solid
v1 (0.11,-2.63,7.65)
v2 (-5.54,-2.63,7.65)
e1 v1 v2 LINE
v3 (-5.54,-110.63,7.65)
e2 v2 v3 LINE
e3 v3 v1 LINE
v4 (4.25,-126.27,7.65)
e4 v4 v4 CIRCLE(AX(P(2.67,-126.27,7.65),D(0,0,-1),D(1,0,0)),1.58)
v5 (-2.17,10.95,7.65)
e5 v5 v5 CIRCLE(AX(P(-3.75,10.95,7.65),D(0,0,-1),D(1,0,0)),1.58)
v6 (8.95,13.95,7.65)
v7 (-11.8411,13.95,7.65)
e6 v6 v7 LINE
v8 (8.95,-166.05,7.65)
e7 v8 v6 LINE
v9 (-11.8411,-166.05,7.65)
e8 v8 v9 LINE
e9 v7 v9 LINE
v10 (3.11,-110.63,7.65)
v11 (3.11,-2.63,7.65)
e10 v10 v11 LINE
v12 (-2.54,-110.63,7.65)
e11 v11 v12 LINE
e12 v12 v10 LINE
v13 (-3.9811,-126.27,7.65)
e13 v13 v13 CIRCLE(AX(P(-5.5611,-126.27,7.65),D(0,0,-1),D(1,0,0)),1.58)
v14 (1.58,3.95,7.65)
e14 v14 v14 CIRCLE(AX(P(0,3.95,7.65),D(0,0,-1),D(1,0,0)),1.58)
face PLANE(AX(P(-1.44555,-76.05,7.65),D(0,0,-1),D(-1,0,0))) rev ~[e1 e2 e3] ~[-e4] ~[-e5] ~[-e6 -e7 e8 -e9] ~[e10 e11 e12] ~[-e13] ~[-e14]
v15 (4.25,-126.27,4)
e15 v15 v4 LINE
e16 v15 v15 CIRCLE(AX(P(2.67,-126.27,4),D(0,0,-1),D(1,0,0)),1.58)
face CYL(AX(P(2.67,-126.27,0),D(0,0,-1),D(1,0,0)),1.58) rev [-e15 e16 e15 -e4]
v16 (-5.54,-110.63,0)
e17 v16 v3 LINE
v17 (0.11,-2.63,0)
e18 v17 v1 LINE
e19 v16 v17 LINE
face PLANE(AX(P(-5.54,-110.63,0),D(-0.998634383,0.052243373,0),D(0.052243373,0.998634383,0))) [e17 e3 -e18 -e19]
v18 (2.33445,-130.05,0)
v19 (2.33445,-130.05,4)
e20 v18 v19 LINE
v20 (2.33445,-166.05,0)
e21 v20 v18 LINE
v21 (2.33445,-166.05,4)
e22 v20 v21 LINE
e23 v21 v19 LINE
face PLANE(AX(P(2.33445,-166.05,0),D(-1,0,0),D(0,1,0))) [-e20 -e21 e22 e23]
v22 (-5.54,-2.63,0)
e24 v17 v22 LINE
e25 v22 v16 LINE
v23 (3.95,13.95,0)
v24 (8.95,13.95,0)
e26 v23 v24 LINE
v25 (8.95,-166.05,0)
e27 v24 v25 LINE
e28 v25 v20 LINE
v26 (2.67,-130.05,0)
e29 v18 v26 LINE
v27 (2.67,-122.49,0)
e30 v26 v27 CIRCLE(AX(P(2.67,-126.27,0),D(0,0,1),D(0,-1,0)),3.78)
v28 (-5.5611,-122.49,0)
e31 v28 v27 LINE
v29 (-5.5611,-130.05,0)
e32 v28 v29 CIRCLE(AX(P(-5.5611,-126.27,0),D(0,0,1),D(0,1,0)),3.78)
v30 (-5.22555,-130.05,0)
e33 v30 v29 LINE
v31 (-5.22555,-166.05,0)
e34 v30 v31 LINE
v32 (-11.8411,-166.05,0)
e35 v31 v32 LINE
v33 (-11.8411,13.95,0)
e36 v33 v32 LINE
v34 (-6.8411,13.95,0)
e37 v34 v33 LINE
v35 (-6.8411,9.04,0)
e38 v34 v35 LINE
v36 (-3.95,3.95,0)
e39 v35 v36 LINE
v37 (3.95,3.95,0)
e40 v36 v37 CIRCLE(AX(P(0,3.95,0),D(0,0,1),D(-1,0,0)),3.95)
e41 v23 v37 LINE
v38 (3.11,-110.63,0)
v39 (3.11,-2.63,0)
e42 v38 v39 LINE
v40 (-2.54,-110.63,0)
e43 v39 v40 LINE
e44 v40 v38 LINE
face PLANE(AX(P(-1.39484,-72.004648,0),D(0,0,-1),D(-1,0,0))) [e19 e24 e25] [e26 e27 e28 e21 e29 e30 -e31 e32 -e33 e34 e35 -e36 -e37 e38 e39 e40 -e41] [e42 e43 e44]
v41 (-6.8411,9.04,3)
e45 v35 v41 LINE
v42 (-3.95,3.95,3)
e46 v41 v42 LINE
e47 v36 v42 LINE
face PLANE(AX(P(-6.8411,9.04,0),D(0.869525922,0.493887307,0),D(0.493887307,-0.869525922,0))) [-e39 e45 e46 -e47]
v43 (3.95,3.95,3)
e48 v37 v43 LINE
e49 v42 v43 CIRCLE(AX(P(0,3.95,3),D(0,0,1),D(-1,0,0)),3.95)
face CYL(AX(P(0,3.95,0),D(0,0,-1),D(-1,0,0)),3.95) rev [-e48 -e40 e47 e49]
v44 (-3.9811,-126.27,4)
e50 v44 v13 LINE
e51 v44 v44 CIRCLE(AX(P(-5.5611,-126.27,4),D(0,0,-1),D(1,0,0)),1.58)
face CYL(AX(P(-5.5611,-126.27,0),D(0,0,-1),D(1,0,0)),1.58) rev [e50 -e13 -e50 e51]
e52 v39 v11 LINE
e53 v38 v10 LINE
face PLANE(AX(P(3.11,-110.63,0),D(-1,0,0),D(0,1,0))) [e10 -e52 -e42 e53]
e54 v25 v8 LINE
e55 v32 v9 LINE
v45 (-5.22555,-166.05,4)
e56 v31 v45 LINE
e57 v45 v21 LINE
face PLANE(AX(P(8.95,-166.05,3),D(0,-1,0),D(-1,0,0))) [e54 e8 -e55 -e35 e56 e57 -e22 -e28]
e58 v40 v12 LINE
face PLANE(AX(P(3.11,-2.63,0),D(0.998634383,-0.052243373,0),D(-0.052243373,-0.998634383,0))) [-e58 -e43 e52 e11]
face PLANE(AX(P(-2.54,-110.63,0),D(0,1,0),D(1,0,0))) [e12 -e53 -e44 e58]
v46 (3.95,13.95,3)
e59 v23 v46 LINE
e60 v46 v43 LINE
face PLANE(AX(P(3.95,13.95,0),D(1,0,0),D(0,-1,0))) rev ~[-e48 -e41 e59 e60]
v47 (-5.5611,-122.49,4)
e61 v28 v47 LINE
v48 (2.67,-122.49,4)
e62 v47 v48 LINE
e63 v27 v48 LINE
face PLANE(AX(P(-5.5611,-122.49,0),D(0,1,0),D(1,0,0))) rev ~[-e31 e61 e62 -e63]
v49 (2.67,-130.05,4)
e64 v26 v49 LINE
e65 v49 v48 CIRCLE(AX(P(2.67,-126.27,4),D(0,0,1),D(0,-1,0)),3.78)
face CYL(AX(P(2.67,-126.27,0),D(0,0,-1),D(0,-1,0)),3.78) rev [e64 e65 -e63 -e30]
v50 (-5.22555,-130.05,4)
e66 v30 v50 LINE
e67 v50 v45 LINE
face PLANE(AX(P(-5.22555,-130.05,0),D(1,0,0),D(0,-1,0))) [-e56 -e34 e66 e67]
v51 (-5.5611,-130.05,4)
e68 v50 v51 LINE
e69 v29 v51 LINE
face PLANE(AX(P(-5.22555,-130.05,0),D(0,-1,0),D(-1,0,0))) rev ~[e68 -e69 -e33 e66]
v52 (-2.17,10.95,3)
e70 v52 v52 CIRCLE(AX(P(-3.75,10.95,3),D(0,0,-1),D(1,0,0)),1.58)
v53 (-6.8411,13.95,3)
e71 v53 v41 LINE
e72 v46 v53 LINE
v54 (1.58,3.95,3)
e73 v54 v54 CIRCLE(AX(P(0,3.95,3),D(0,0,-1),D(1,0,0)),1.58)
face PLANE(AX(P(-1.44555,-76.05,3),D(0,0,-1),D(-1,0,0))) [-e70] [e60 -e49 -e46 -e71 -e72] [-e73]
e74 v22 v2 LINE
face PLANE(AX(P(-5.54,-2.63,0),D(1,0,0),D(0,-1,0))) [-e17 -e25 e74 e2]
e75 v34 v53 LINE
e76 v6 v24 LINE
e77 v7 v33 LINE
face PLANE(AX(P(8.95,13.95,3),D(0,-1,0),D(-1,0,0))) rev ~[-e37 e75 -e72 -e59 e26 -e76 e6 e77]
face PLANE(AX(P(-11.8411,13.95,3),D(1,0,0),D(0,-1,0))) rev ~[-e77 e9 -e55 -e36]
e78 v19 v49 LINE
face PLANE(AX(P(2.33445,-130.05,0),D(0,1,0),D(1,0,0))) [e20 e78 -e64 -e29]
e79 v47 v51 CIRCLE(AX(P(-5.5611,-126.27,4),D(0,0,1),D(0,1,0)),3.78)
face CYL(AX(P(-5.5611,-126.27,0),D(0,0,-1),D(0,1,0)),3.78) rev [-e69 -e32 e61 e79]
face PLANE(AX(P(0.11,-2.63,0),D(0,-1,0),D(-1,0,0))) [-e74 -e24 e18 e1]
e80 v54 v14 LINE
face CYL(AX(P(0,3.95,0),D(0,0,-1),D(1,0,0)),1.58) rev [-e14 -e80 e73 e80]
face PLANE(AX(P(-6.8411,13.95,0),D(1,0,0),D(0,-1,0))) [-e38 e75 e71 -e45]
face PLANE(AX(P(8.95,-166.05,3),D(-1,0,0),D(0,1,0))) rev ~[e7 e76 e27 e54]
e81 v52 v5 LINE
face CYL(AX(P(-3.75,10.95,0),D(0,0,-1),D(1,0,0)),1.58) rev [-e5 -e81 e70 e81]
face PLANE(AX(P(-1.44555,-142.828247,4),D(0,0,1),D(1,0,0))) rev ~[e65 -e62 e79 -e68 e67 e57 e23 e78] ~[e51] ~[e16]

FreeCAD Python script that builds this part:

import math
import FreeCAD as App
import Part
import Sketcher

V = App.Vector
Q = App.Units.Quantity


def add_polygon(sketch, points):
    """Adds a closed chain of lines whose ends are joined by coincident constraints."""
    first, n = sketch.GeometryCount, len(points)
    for a, b in zip(points, points[1:] + points[:1]):
        sketch.addGeometry(Part.LineSegment(App.Vector(*a, 0), App.Vector(*b, 0)), False)
    for i in range(n):
        sketch.addConstraint(Sketcher.Constraint("Coincident", first + i, 2, first + (i + 1) % n, 1))

doc = App.newDocument("Part")
body = doc.addObject("PartDesign::Body", "Body")

# Sketch on XY plane
sketch1 = body.newObject("Sketcher::SketchObject", "Sketch")
sketch1.AttachmentSupport = (doc.getObject("XY_Plane"), [""])
sketch1.MapMode = "FlatFace"
sketch1.addGeometry(Part.ArcOfCircle(Part.Circle(V(0, 3.95, 0), V(0, 0, 1), 3.95), math.radians(180), math.radians(360)), False)
sketch1.addGeometry(Part.LineSegment(V(-3.95, 3.95, 0), V(-6.8411, 9.04, 0)), False)
sketch1.addGeometry(Part.LineSegment(V(-6.8411, 9.04, 0), V(-6.8411, 13.95, 0)), False)
sketch1.addGeometry(Part.LineSegment(V(-6.8411, 13.95, 0), V(-11.8411, 13.95, 0)), False)
sketch1.addGeometry(Part.LineSegment(V(-11.8411, 13.95, 0), V(-11.8411, -166.05, 0)), False)
sketch1.addGeometry(Part.LineSegment(V(-11.8411, -166.05, 0), V(8.95, -166.05, 0)), False)
sketch1.addGeometry(Part.LineSegment(V(8.95, -166.05, 0), V(8.95, 13.95, 0)), False)
sketch1.addGeometry(Part.LineSegment(V(8.95, 13.95, 0), V(3.95, 13.95, 0)), False)
sketch1.addGeometry(Part.LineSegment(V(3.95, 13.95, 0), V(3.95, 3.95, 0)), False)
sketch1.addConstraint(Sketcher.Constraint("Coincident", 0, 1, 1, 1))
sketch1.addConstraint(Sketcher.Constraint("Coincident", 1, 2, 2, 1))
sketch1.addConstraint(Sketcher.Constraint("Coincident", 2, 2, 3, 1))
sketch1.addConstraint(Sketcher.Constraint("Coincident", 3, 2, 4, 1))
sketch1.addConstraint(Sketcher.Constraint("Coincident", 4, 2, 5, 1))
sketch1.addConstraint(Sketcher.Constraint("Coincident", 5, 2, 6, 1))
sketch1.addConstraint(Sketcher.Constraint("Coincident", 6, 2, 7, 1))
sketch1.addConstraint(Sketcher.Constraint("Coincident", 7, 2, 8, 1))
sketch1.addConstraint(Sketcher.Constraint("Tangent", 8, 2, 0, 2))
sketch1.addConstraint(Sketcher.Constraint("Vertical", 2))
sketch1.addConstraint(Sketcher.Constraint("Horizontal", 3))
sketch1.addConstraint(Sketcher.Constraint("Vertical", 4))
sketch1.addConstraint(Sketcher.Constraint("Horizontal", 5))
sketch1.addConstraint(Sketcher.Constraint("Vertical", 6))
sketch1.addConstraint(Sketcher.Constraint("Horizontal", 7))
sketch1.addConstraint(Sketcher.Constraint("Vertical", 8))
sketch1.addConstraint(Sketcher.Constraint("Symmetric", 0, 1, 8, 2, -2))
sketch1.addConstraint(Sketcher.Constraint("Horizontal", 3, 2, 6, 2))
sketch1.addConstraint(Sketcher.Constraint("Equal", 3, 7))
sketch1.addConstraint(Sketcher.Constraint("DistanceX", 3, 2, 3, 1, Q("5 mm")))
sketch1.addConstraint(Sketcher.Constraint("DistanceY", 4, 2, 4, 1, Q("180 mm")))
sketch1.addConstraint(Sketcher.Constraint("DistanceY", 8, 2, 8, 1, Q("10 mm")))
sketch1.addConstraint(Sketcher.Constraint("Radius", 0, Q("3.95 mm")))
sketch1.addConstraint(Sketcher.Constraint("DistanceY", 2, 1, 2, 2, Q("4.91 mm")))
sketch1.addConstraint(Sketcher.Constraint("DistanceY", -1, 1, 0, 3, Q("3.95 mm")))
sketch1.addConstraint(Sketcher.Constraint("DistanceX", 5, 1, 5, 2, Q("20.7911 mm")))
pad1 = body.newObject("PartDesign::Pad", "Pad")
pad1.Profile = sketch1
pad1.Length = 3

# Sketch on XY plane
sketch2 = body.newObject("Sketcher::SketchObject", "Sketch001")
sketch2.AttachmentSupport = (doc.getObject("XY_Plane"), [""])
sketch2.MapMode = "FlatFace"
sketch2.AttachmentOffset = App.Placement(V(0, 0, 3), App.Rotation())
add_polygon(sketch2, [(-11.8411, 13.95), (-11.8411, -166.05), (8.95, -166.05), (8.95, 13.95)])  # lines 0-3
sketch2.addConstraint(Sketcher.Constraint("Vertical", 0))
sketch2.addConstraint(Sketcher.Constraint("Horizontal", 1))
sketch2.addConstraint(Sketcher.Constraint("Vertical", 2))
sketch2.addConstraint(Sketcher.Constraint("Horizontal", 3))
sketch2.addConstraint(Sketcher.Constraint("DistanceY", 0, 2, 0, 1, Q("180 mm")))
sketch2.addConstraint(Sketcher.Constraint("DistanceY", 0, 2, -1, 1, Q("166.05 mm")))
sketch2.addConstraint(Sketcher.Constraint("DistanceX", -1, 1, 1, 2, Q("8.95 mm")))
sketch2.addConstraint(Sketcher.Constraint("DistanceX", 1, 1, 1, 2, Q("20.7911 mm")))
pad2 = body.newObject("PartDesign::Pad", "Pad001")
pad2.Profile = sketch2
pad2.Length = 4.65

# Sketch on XY plane
sketch3 = body.newObject("Sketcher::SketchObject", "Sketch002")
sketch3.AttachmentSupport = (doc.getObject("XY_Plane"), [""])
sketch3.MapMode = "FlatFace"
sketch3.addGeometry(Part.Circle(V(0, 3.95, 0), V(0, 0, 1), 1.58), False)
sketch3.addGeometry(Part.Circle(V(-3.75, 10.95, 0), V(0, 0, 1), 1.58), False)
sketch3.addConstraint(Sketcher.Constraint("Equal", 0, 1))
sketch3.addConstraint(Sketcher.Constraint("PointOnObject", 0, 3, -2))
sketch3.addConstraint(Sketcher.Constraint("Diameter", 0, Q("3.16 mm")))
sketch3.addConstraint(Sketcher.Constraint("DistanceY", 0, 3, 1, 3, Q("7 mm")))
sketch3.addConstraint(Sketcher.Constraint("DistanceY", -1, 1, 0, 3, Q("3.95 mm")))
sketch3.addConstraint(Sketcher.Constraint("DistanceX", 1, 3, -1, 1, Q("3.75 mm")))
pocket1 = body.newObject("PartDesign::Pocket", "Pocket")
pocket1.Profile = sketch3
pocket1.Type = "ThroughAll"
pocket1.Midplane = True

# Sketch on XY plane
sketch4 = body.newObject("Sketcher::SketchObject", "Sketch003")
sketch4.AttachmentSupport = (doc.getObject("XY_Plane"), [""])
sketch4.MapMode = "FlatFace"
add_polygon(sketch4, [(0.11, -2.63), (-5.54, -2.63), (-5.54, -110.63)])  # lines 0-2
add_polygon(sketch4, [(-2.54, -110.63), (3.11, -110.63), (3.11, -2.63)])  # lines 3-5
sketch4.addConstraint(Sketcher.Constraint("Horizontal", 0))
sketch4.addConstraint(Sketcher.Constraint("Vertical", 1))
sketch4.addConstraint(Sketcher.Constraint("Horizontal", 3))
sketch4.addConstraint(Sketcher.Constraint("Vertical", 4))
sketch4.addConstraint(Sketcher.Constraint("Parallel", 2, 5))
sketch4.addConstraint(Sketcher.Constraint("Horizontal", 1, 2, 3, 2))
sketch4.addConstraint(Sketcher.Constraint("Horizontal", 2, 2, 4, 2))
sketch4.addConstraint(Sketcher.Constraint("DistanceY", 1, 2, 1, 1, Q("108 mm")))
sketch4.addConstraint(Sketcher.Constraint("DistanceX", 2, 2, 3, 2, Q("3 mm")))
sketch4.addConstraint(Sketcher.Constraint("DistanceX", 0, 2, 0, 1, Q("5.65 mm")))
sketch4.addConstraint(Sketcher.Constraint("DistanceX", 0, 2, -1, 1, Q("5.54 mm")))
sketch4.addConstraint(Sketcher.Constraint("DistanceY", 0, 2, -1, 1, Q("2.63 mm")))
pocket2 = body.newObject("PartDesign::Pocket", "Pocket001")
pocket2.Profile = sketch4
pocket2.Type = "ThroughAll"
pocket2.Midplane = True

# Sketch on XY plane
sketch5 = body.newObject("Sketcher::SketchObject", "Sketch004")
sketch5.AttachmentSupport = (doc.getObject("XY_Plane"), [""])
sketch5.MapMode = "FlatFace"
sketch5.addGeometry(Part.LineSegment(V(-5.22555, -130.05, 0), V(-5.22555, -166.05, 0)), False)
sketch5.addGeometry(Part.LineSegment(V(-5.22555, -166.05, 0), V(2.33445, -166.05, 0)), False)
sketch5.addGeometry(Part.LineSegment(V(2.33445, -166.05, 0), V(2.33445, -130.05, 0)), False)
sketch5.addGeometry(Part.LineSegment(V(2.33445, -130.05, 0), V(2.67, -130.05, 0)), False)
sketch5.addGeometry(Part.ArcOfCircle(Part.Circle(V(2.67, -126.27, 0), V(0, 0, 1), 3.78), math.radians(-90), math.radians(90)), False)
sketch5.addGeometry(Part.LineSegment(V(2.67, -122.49, 0), V(-5.5611, -122.49, 0)), False)
sketch5.addGeometry(Part.ArcOfCircle(Part.Circle(V(-5.5611, -126.27, 0), V(0, 0, 1), 3.78), math.radians(90), math.radians(270)), False)
sketch5.addGeometry(Part.LineSegment(V(-5.5611, -130.05, 0), V(-5.22555, -130.05, 0)), False)
sketch5.addConstraint(Sketcher.Constraint("Coincident", 0, 2, 1, 1))
sketch5.addConstraint(Sketcher.Constraint("Coincident", 1, 2, 2, 1))
sketch5.addConstraint(Sketcher.Constraint("Coincident", 2, 2, 3, 1))
sketch5.addConstraint(Sketcher.Constraint("Tangent", 3, 2, 4, 1))
sketch5.addConstraint(Sketcher.Constraint("Tangent", 4, 2, 5, 1))
sketch5.addConstraint(Sketcher.Constraint("Tangent", 5, 2, 6, 1))
sketch5.addConstraint(Sketcher.Constraint("Tangent", 6, 2, 7, 1))
sketch5.addConstraint(Sketcher.Constraint("Coincident", 7, 2, 0, 1))
sketch5.addConstraint(Sketcher.Constraint("Vertical", 0))
sketch5.addConstraint(Sketcher.Constraint("Horizontal", 1))
sketch5.addConstraint(Sketcher.Constraint("Vertical", 2))
sketch5.addConstraint(Sketcher.Constraint("Horizontal", 3))
sketch5.addConstraint(Sketcher.Constraint("Horizontal", 5))
sketch5.addConstraint(Sketcher.Constraint("Horizontal", 7))
sketch5.addConstraint(Sketcher.Constraint("Equal", 4, 6))
sketch5.addConstraint(Sketcher.Constraint("Equal", 3, 7))
sketch5.addConstraint(Sketcher.Constraint("DistanceY", 0, 2, 0, 1, Q("36 mm")))
sketch5.addConstraint(Sketcher.Constraint("Radius", 4, Q("3.78 mm")))
sketch5.addConstraint(Sketcher.Constraint("DistanceX", 1, 1, 1, 2, Q("7.56 mm")))
sketch5.addConstraint(Sketcher.Constraint("DistanceX", -1, 1, 4, 3, Q("2.67 mm")))
sketch5.addConstraint(Sketcher.Constraint("DistanceY", 4, 3, -1, 1, Q("126.27 mm")))
sketch5.addConstraint(Sketcher.Constraint("DistanceX", 5, 2, 5, 1, Q("8.2311 mm")))
pocket3 = body.newObject("PartDesign::Pocket", "Pocket002")
pocket3.Profile = sketch5
pocket3.Length = 4
pocket3.Reversed = True

# Sketch on XY plane
sketch6 = body.newObject("Sketcher::SketchObject", "Sketch005")
sketch6.AttachmentSupport = (doc.getObject("XY_Plane"), [""])
sketch6.MapMode = "FlatFace"
sketch6.addGeometry(Part.Circle(V(-5.5611, -126.27, 0), V(0, 0, 1), 1.58), False)
sketch6.addGeometry(Part.Circle(V(2.67, -126.27, 0), V(0, 0, 1), 1.58), False)
sketch6.addConstraint(Sketcher.Constraint("Equal", 0, 1))
sketch6.addConstraint(Sketcher.Constraint("Horizontal", 0, 3, 1, 3))
sketch6.addConstraint(Sketcher.Constraint("Diameter", 0, Q("3.16 mm")))
sketch6.addConstraint(Sketcher.Constraint("DistanceY", 0, 3, -1, 1, Q("126.27 mm")))
sketch6.addConstraint(Sketcher.Constraint("DistanceX", -1, 1, 1, 3, Q("2.67 mm")))
sketch6.addConstraint(Sketcher.Constraint("DistanceX", 0, 3, -1, 1, Q("5.5611 mm")))
pocket4 = body.newObject("PartDesign::Pocket", "Pocket003")
pocket4.Profile = sketch6
pocket4.Type = "ThroughAll"
pocket4.Midplane = True

doc.recompute()
